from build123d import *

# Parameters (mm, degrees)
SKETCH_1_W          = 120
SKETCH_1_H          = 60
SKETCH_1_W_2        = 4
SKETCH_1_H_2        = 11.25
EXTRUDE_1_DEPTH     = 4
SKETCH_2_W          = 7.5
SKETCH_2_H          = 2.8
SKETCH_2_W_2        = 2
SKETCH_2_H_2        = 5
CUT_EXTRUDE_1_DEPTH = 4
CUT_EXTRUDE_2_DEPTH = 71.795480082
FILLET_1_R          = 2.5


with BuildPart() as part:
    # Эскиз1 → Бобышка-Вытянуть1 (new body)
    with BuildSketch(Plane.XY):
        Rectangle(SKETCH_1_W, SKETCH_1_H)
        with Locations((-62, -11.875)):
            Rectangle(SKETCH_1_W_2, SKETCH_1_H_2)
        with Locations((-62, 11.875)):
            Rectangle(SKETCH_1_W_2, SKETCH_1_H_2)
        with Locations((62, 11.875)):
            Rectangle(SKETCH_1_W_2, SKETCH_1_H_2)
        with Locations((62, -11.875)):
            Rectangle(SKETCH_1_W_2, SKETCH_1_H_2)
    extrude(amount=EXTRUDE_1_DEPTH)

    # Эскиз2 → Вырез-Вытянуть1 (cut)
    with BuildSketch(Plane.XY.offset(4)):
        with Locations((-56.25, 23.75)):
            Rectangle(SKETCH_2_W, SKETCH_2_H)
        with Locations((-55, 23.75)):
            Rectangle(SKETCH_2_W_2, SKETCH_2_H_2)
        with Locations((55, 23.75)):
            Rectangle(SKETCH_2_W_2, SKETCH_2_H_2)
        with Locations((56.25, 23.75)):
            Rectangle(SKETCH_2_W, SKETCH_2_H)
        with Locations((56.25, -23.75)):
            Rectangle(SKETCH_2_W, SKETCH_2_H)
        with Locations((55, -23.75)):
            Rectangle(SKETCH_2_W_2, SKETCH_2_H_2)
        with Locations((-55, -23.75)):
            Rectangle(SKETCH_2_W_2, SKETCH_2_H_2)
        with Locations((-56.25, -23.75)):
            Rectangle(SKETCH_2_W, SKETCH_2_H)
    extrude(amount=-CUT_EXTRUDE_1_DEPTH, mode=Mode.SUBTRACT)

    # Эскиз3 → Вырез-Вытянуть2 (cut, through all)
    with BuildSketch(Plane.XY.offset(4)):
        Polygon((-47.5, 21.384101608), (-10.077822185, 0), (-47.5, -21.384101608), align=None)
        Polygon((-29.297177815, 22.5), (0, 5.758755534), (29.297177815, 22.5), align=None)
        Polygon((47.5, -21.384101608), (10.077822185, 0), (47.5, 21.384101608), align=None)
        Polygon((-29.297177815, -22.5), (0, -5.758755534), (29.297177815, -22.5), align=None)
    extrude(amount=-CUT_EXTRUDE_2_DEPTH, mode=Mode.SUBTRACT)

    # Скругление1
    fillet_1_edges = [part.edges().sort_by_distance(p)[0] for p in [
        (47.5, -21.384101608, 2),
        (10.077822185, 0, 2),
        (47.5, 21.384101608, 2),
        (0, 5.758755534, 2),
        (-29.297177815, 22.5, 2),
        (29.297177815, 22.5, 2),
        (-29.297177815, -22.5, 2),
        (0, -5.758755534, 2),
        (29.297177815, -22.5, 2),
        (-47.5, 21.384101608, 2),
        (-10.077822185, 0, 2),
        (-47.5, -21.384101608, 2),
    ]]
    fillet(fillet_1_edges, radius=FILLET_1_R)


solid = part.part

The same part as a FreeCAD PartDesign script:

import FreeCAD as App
import Part
import Sketcher
from FreeCAD import Vector


def edges_at(feature, points):
    """Names of the edges that pass closest to the given points."""
    edges = feature.Shape.Edges
    near = lambda p: min(range(len(edges)), key=lambda i: edges[i].distToShape(Part.Vertex(*p))[0])
    return sorted({f"Edge{near(p) + 1}" for p in points})

doc = App.newDocument("Part")
params = doc.addObject("Spreadsheet::Sheet", "Params")
for row, (alias, value) in enumerate([
    ("sketch1_width", "120 mm"),
    ("sketch1_width2", "4 mm"),
    ("sketch1_height", "12.5 mm"),
    ("pad1_length", "4 mm"),
    ("sketch2_width", "4 mm"),
    ("sketch2_width2", "2 mm"),
    ("sketch2_width3", "1.5 mm"),
    ("sketch2_height", "2.8 mm"),
    ("sketch2_height2", "1.1 mm"),
    ("pocket1_length", "4 mm"),
    ("fillet_radius", "2.5 mm"),
], start=1):
    params.set(f"A{row}", alias)
    params.set(f"B{row}", "=" + value)
    params.setAlias(f"B{row}", alias)

body = doc.addObject("PartDesign::Body", "Body")

# Sketch on XY plane
sketch1 = body.newObject("Sketcher::SketchObject", "Sketch")
sketch1.AttachmentSupport = (doc.getObject("XY_Plane"), [""])
sketch1.MapMode = "FlatFace"
sketch1.addGeometry(Part.LineSegment(Vector(-60, -17.5, 0), Vector(-60, -30, 0)), False)
sketch1.addGeometry(Part.LineSegment(Vector(-60, -30, 0), Vector(60, -30, 0)), False)
sketch1.addGeometry(Part.LineSegment(Vector(60, -30, 0), Vector(60, -17.5, 0)), False)
sketch1.addGeometry(Part.LineSegment(Vector(60, -17.5, 0), Vector(64, -17.5, 0)), False)
sketch1.addGeometry(Part.LineSegment(Vector(64, -17.5, 0), Vector(64, -6.2, 0)), False)
sketch1.addGeometry(Part.LineSegment(Vector(64, -6.2, 0), Vector(60, -6.2, 0)), False)
sketch1.addGeometry(Part.LineSegment(Vector(60, -6.2, 0), Vector(60, 6.2, 0)), False)
sketch1.addGeometry(Part.LineSegment(Vector(60, 6.2, 0), Vector(64, 6.2, 0)), False)
sketch1.addGeometry(Part.LineSegment(Vector(64, 6.2, 0), Vector(64, 17.5, 0)), False)
sketch1.addGeometry(Part.LineSegment(Vector(64, 17.5, 0), Vector(60, 17.5, 0)), False)
sketch1.addGeometry(Part.LineSegment(Vector(60, 17.5, 0), Vector(60, 30, 0)), False)
sketch1.addGeometry(Part.LineSegment(Vector(60, 30, 0), Vector(-60, 30, 0)), False)
sketch1.addGeometry(Part.LineSegment(Vector(-60, 30, 0), Vector(-60, 17.5, 0)), False)
sketch1.addGeometry(Part.LineSegment(Vector(-60, 17.5, 0), Vector(-64, 17.5, 0)), False)
sketch1.addGeometry(Part.LineSegment(Vector(-64, 17.5, 0), Vector(-64, 6.2, 0)), False)
sketch1.addGeometry(Part.LineSegment(Vector(-64, 6.2, 0), Vector(-60, 6.2, 0)), False)
sketch1.addGeometry(Part.LineSegment(Vector(-60, 6.2, 0), Vector(-60, -6.2, 0)), False)
sketch1.addGeometry(Part.LineSegment(Vector(-60, -6.2, 0), Vector(-64, -6.2, 0)), False)
sketch1.addGeometry(Part.LineSegment(Vector(-64, -6.2, 0), Vector(-64, -17.5, 0)), False)
sketch1.addGeometry(Part.LineSegment(Vector(-64, -17.5, 0), Vector(-60, -17.5, 0)), False)
sketch1.addConstraint(Sketcher.Constraint("Coincident", 0, 2, 1, 1))
sketch1.addConstraint(Sketcher.Constraint("Coincident", 1, 2, 2, 1))
sketch1.addConstraint(Sketcher.Constraint("Coincident", 2, 2, 3, 1))
sketch1.addConstraint(Sketcher.Constraint("Coincident", 3, 2, 4, 1))
sketch1.addConstraint(Sketcher.Constraint("Coincident", 4, 2, 5, 1))
sketch1.addConstraint(Sketcher.Constraint("Coincident", 5, 2, 6, 1))
sketch1.addConstraint(Sketcher.Constraint("Coincident", 6, 2, 7, 1))
sketch1.addConstraint(Sketcher.Constraint("Coincident", 7, 2, 8, 1))
sketch1.addConstraint(Sketcher.Constraint("Coincident", 8, 2, 9, 1))
sketch1.addConstraint(Sketcher.Constraint("Coincident", 9, 2, 10, 1))
sketch1.addConstraint(Sketcher.Constraint("Coincident", 10, 2, 11, 1))
sketch1.addConstraint(Sketcher.Constraint("Coincident", 11, 2, 12, 1))
sketch1.addConstraint(Sketcher.Constraint("Coincident", 12, 2, 13, 1))
sketch1.addConstraint(Sketcher.Constraint("Coincident", 13, 2, 14, 1))
sketch1.addConstraint(Sketcher.Constraint("Coincident", 14, 2, 15, 1))
sketch1.addConstraint(Sketcher.Constraint("Coincident", 15, 2, 16, 1))
sketch1.addConstraint(Sketcher.Constraint("Coincident", 16, 2, 17, 1))
sketch1.addConstraint(Sketcher.Constraint("Coincident", 17, 2, 18, 1))
sketch1.addConstraint(Sketcher.Constraint("Coincident", 18, 2, 19, 1))
sketch1.addConstraint(Sketcher.Constraint("Coincident", 19, 2, 0, 1))
sketch1.addConstraint(Sketcher.Constraint("Vertical", 0))
sketch1.addConstraint(Sketcher.Constraint("Horizontal", 1))
sketch1.addConstraint(Sketcher.Constraint("Vertical", 2))
sketch1.addConstraint(Sketcher.Constraint("Horizontal", 3))
sketch1.addConstraint(Sketcher.Constraint("Vertical", 4))
sketch1.addConstraint(Sketcher.Constraint("Horizontal", 5))
sketch1.addConstraint(Sketcher.Constraint("Vertical", 6))
sketch1.addConstraint(Sketcher.Constraint("Horizontal", 7))
sketch1.addConstraint(Sketcher.Constraint("Vertical", 8))
sketch1.addConstraint(Sketcher.Constraint("Horizontal", 9))
sketch1.addConstraint(Sketcher.Constraint("Vertical", 10))
sketch1.addConstraint(Sketcher.Constraint("Horizontal", 11))
sketch1.addConstraint(Sketcher.Constraint("Vertical", 12))
sketch1.addConstraint(Sketcher.Constraint("Horizontal", 13))
sketch1.addConstraint(Sketcher.Constraint("Vertical", 14))
sketch1.addConstraint(Sketcher.Constraint("Horizontal", 15))
sketch1.addConstraint(Sketcher.Constraint("Vertical", 16))
sketch1.addConstraint(Sketcher.Constraint("Horizontal", 17))
sketch1.addConstraint(Sketcher.Constraint("Vertical", 18))
sketch1.addConstraint(Sketcher.Constraint("Horizontal", 19))
sketch1.addConstraint(Sketcher.Constraint("Symmetric", 0, 2, 10, 2, -1, 1))
sketch1.addConstraint(Sketcher.Constraint("Symmetric", 2, 2, 12, 2, -1, 1))
sketch1.addConstraint(Sketcher.Constraint("Symmetric", 4, 2, 14, 2, -1, 1))
sketch1.addConstraint(Sketcher.Constraint("Symmetric", 6, 2, 16, 2, -1, 1))
sketch1.addConstraint(Sketcher.Constraint("Symmetric", 8, 2, 18, 2, -1, 1))
sketch1.addConstraint(Sketcher.Constraint("Symmetric", 9, 2, 12, 2, -2))
sketch1.addConstraint(Sketcher.Constraint("Symmetric", 7, 2, 14, 2, -2))
sketch1.addConstraint(Sketcher.Constraint("Vertical", 2, 2, 5, 2))
sketch1.addConstraint(Sketcher.Constraint("Equal", 2, 6))
sketch1.addConstraint(Sketcher.Constraint("DistanceX", 1, 1, 1, 2, 120.0))
sketch1.addConstraint(Sketcher.Constraint("DistanceX", 3, 1, 3, 2, 4.0))
sketch1.addConstraint(Sketcher.Constraint("DistanceY", 0, 2, 0, 1, 12.5))
sketch1.addConstraint(Sketcher.Constraint("DistanceY", 0, 2, -1, 1, 30.0))
sketch1.setExpression("Constraints[49]", "Params.sketch1_width")
sketch1.setExpression("Constraints[50]", "Params.sketch1_width2")
sketch1.setExpression("Constraints[51]", "Params.sketch1_height")
pad1 = body.newObject("PartDesign::Pad", "Pad")
pad1.Profile = sketch1
pad1.setExpression("Length", "Params.pad1_length")

# Sketch on XY plane
sketch2 = body.newObject("Sketcher::SketchObject", "Sketch001")
sketch2.AttachmentSupport = (doc.getObject("XY_Plane"), [""])
sketch2.MapMode = "FlatFace"
sketch2.AttachmentOffset = App.Placement(Vector(0, 0, 4), App.Rotation())
sketch2.addGeometry(Part.LineSegment(Vector(-60, 25.1, 0), Vector(-60, 22.4, 0)), False)
sketch2.addGeometry(Part.LineSegment(Vector(-60, 22.4, 0), Vector(-56, 22.4, 0)), False)
sketch2.addGeometry(Part.LineSegment(Vector(-56, 22.4, 0), Vector(-56, 21.2, 0)), False)
sketch2.addGeometry(Part.LineSegment(Vector(-56, 21.2, 0), Vector(-54, 21.2, 0)), False)
sketch2.addGeometry(Part.LineSegment(Vector(-54, 21.2, 0), Vector(-54, 22.4, 0)), False)
sketch2.addGeometry(Part.LineSegment(Vector(-54, 22.4, 0), Vector(-52.5, 22.4, 0)), False)
sketch2.addGeometry(Part.LineSegment(Vector(-52.5, 22.4, 0), Vector(-52.5, 25.1, 0)), False)
sketch2.addGeometry(Part.LineSegment(Vector(-52.5, 25.1, 0), Vector(-54, 25.1, 0)), False)
sketch2.addGeometry(Part.LineSegment(Vector(-54, 25.1, 0), Vector(-54, 26.2, 0)), False)
sketch2.addGeometry(Part.LineSegment(Vector(-54, 26.2, 0), Vector(-56, 26.2, 0)), False)
sketch2.addGeometry(Part.LineSegment(Vector(-56, 26.2, 0), Vector(-56, 25.1, 0)), False)
sketch2.addGeometry(Part.LineSegment(Vector(-56, 25.1, 0), Vector(-60, 25.1, 0)), False)
sketch2.addGeometry(Part.LineSegment(Vector(54, 22.4, 0), Vector(54, 21.2, 0)), False)
sketch2.addGeometry(Part.LineSegment(Vector(54, 21.2, 0), Vector(56, 21.2, 0)), False)
sketch2.addGeometry(Part.LineSegment(Vector(56, 21.2, 0), Vector(56, 22.4, 0)), False)
sketch2.addGeometry(Part.LineSegment(Vector(56, 22.4, 0), Vector(60, 22.4, 0)), False)
sketch2.addGeometry(Part.LineSegment(Vector(60, 22.4, 0), Vector(60, 25.1, 0)), False)
sketch2.addGeometry(Part.LineSegment(Vector(60, 25.1, 0), Vector(56, 25.1, 0)), False)
sketch2.addGeometry(Part.LineSegment(Vector(56, 25.1, 0), Vector(56, 26.2, 0)), False)
sketch2.addGeometry(Part.LineSegment(Vector(56, 26.2, 0), Vector(54, 26.2, 0)), False)
sketch2.addGeometry(Part.LineSegment(Vector(54, 26.2, 0), Vector(54, 25.1, 0)), False)
sketch2.addGeometry(Part.LineSegment(Vector(54, 25.1, 0), Vector(52.5, 25.1, 0)), False)
sketch2.addGeometry(Part.LineSegment(Vector(52.5, 25.1, 0), Vector(52.5, 22.4, 0)), False)
sketch2.addGeometry(Part.LineSegment(Vector(52.5, 22.4, 0), Vector(54, 22.4, 0)), False)
sketch2.addGeometry(Part.LineSegment(Vector(52.5, -22.4, 0), Vector(52.5, -25.1, 0)), False)
sketch2.addGeometry(Part.LineSegment(Vector(52.5, -25.1, 0), Vector(54, -25.1, 0)), False)
sketch2.addGeometry(Part.LineSegment(Vector(54, -25.1, 0), Vector(54, -26.2, 0)), False)
sketch2.addGeometry(Part.LineSegment(Vector(54, -26.2, 0), Vector(56, -26.2, 0)), False)
sketch2.addGeometry(Part.LineSegment(Vector(56, -26.2, 0), Vector(56, -25.1, 0)), False)
sketch2.addGeometry(Part.LineSegment(Vector(56, -25.1, 0), Vector(60, -25.1, 0)), False)
sketch2.addGeometry(Part.LineSegment(Vector(60, -25.1, 0), Vector(60, -22.4, 0)), False)
sketch2.addGeometry(Part.LineSegment(Vector(60, -22.4, 0), Vector(56, -22.4, 0)), False)
sketch2.addGeometry(Part.LineSegment(Vector(56, -22.4, 0), Vector(56, -21.2, 0)), False)
sketch2.addGeometry(Part.LineSegment(Vector(56, -21.2, 0), Vector(54, -21.2, 0)), False)
sketch2.addGeometry(Part.LineSegment(Vector(54, -21.2, 0), Vector(54, -22.4, 0)), False)
sketch2.addGeometry(Part.LineSegment(Vector(54, -22.4, 0), Vector(52.5, -22.4, 0)), False)
sketch2.addGeometry(Part.LineSegment(Vector(-56, -25.1, 0), Vector(-56, -26.2, 0)), False)
sketch2.addGeometry(Part.LineSegment(Vector(-56, -26.2, 0), Vector(-54, -26.2, 0)), False)
sketch2.addGeometry(Part.LineSegment(Vector(-54, -26.2, 0), Vector(-54, -25.1, 0)), False)
sketch2.addGeometry(Part.LineSegment(Vector(-54, -25.1, 0), Vector(-52.5, -25.1, 0)), False)
sketch2.addGeometry(Part.LineSegment(Vector(-52.5, -25.1, 0), Vector(-52.5, -22.4, 0)), False)
sketch2.addGeometry(Part.LineSegment(Vector(-52.5, -22.4, 0), Vector(-54, -22.4, 0)), False)
sketch2.addGeometry(Part.LineSegment(Vector(-54, -22.4, 0), Vector(-54, -21.2, 0)), False)
sketch2.addGeometry(Part.LineSegment(Vector(-54, -21.2, 0), Vector(-56, -21.2, 0)), False)
sketch2.addGeometry(Part.LineSegment(Vector(-56, -21.2, 0), Vector(-56, -22.4, 0)), False)
sketch2.addGeometry(Part.LineSegment(Vector(-56, -22.4, 0), Vector(-60, -22.4, 0)), False)
sketch2.addGeometry(Part.LineSegment(Vector(-60, -22.4, 0), Vector(-60, -25.1, 0)), False)
sketch2.addGeometry(Part.LineSegment(Vector(-60, -25.1, 0), Vector(-56, -25.1, 0)), False)
sketch2.addConstraint(Sketcher.Constraint("Coincident", 0, 2, 1, 1))
sketch2.addConstraint(Sketcher.Constraint("Coincident", 1, 2, 2, 1))
sketch2.addConstraint(Sketcher.Constraint("Coincident", 2, 2, 3, 1))
sketch2.addConstraint(Sketcher.Constraint("Coincident", 3, 2, 4, 1))
sketch2.addConstraint(Sketcher.Constraint("Coincident", 4, 2, 5, 1))
sketch2.addConstraint(Sketcher.Constraint("Coincident", 5, 2, 6, 1))
sketch2.addConstraint(Sketcher.Constraint("Coincident", 6, 2, 7, 1))
sketch2.addConstraint(Sketcher.Constraint("Coincident", 7, 2, 8, 1))
sketch2.addConstraint(Sketcher.Constraint("Coincident", 8, 2, 9, 1))
sketch2.addConstraint(Sketcher.Constraint("Coincident", 9, 2, 10, 1))
sketch2.addConstraint(Sketcher.Constraint("Coincident", 10, 2, 11, 1))
sketch2.addConstraint(Sketcher.Constraint("Coincident", 11, 2, 0, 1))
sketch2.addConstraint(Sketcher.Constraint("Coincident", 12, 2, 13, 1))
sketch2.addConstraint(Sketcher.Constraint("Coincident", 13, 2, 14, 1))
sketch2.addConstraint(Sketcher.Constraint("Coincident", 14, 2, 15, 1))
sketch2.addConstraint(Sketcher.Constraint("Coincident", 15, 2, 16, 1))
sketch2.addConstraint(Sketcher.Constraint("Coincident", 16, 2, 17, 1))
sketch2.addConstraint(Sketcher.Constraint("Coincident", 17, 2, 18, 1))
sketch2.addConstraint(Sketcher.Constraint("Coincident", 18, 2, 19, 1))
sketch2.addConstraint(Sketcher.Constraint("Coincident", 19, 2, 20, 1))
sketch2.addConstraint(Sketcher.Constraint("Coincident", 20, 2, 21, 1))
sketch2.addConstraint(Sketcher.Constraint("Coincident", 21, 2, 22, 1))
sketch2.addConstraint(Sketcher.Constraint("Coincident", 22, 2, 23, 1))
sketch2.addConstraint(Sketcher.Constraint("Coincident", 23, 2, 12, 1))
sketch2.addConstraint(Sketcher.Constraint("Coincident", 24, 2, 25, 1))
sketch2.addConstraint(Sketcher.Constraint("Coincident", 25, 2, 26, 1))
sketch2.addConstraint(Sketcher.Constraint("Coincident", 26, 2, 27, 1))
sketch2.addConstraint(Sketcher.Constraint("Coincident", 27, 2, 28, 1))
sketch2.addConstraint(Sketcher.Constraint("Coincident", 28, 2, 29, 1))
sketch2.addConstraint(Sketcher.Constraint("Coincident", 29, 2, 30, 1))
sketch2.addConstraint(Sketcher.Constraint("Coincident", 30, 2, 31, 1))
sketch2.addConstraint(Sketcher.Constraint("Coincident", 31, 2, 32, 1))
sketch2.addConstraint(Sketcher.Constraint("Coincident", 32, 2, 33, 1))
sketch2.addConstraint(Sketcher.Constraint("Coincident", 33, 2, 34, 1))
sketch2.addConstraint(Sketcher.Constraint("Coincident", 34, 2, 35, 1))
sketch2.addConstraint(Sketcher.Constraint("Coincident", 35, 2, 24, 1))
sketch2.addConstraint(Sketcher.Constraint("Coincident", 36, 2, 37, 1))
sketch2.addConstraint(Sketcher.Constraint("Coincident", 37, 2, 38, 1))
sketch2.addConstraint(Sketcher.Constraint("Coincident", 38, 2, 39, 1))
sketch2.addConstraint(Sketcher.Constraint("Coincident", 39, 2, 40, 1))
sketch2.addConstraint(Sketcher.Constraint("Coincident", 40, 2, 41, 1))
sketch2.addConstraint(Sketcher.Constraint("Coincident", 41, 2, 42, 1))
sketch2.addConstraint(Sketcher.Constraint("Coincident", 42, 2, 43, 1))
sketch2.addConstraint(Sketcher.Constraint("Coincident", 43, 2, 44, 1))
sketch2.addConstraint(Sketcher.Constraint("Coincident", 44, 2, 45, 1))
sketch2.addConstraint(Sketcher.Constraint("Coincident", 45, 2, 46, 1))
sketch2.addConstraint(Sketcher.Constraint("Coincident", 46, 2, 47, 1))
sketch2.addConstraint(Sketcher.Constraint("Coincident", 47, 2, 36, 1))
sketch2.addConstraint(Sketcher.Constraint("Vertical", 0))
sketch2.addConstraint(Sketcher.Constraint("Horizontal", 1))
sketch2.addConstraint(Sketcher.Constraint("Vertical", 2))
sketch2.addConstraint(Sketcher.Constraint("Horizontal", 3))
sketch2.addConstraint(Sketcher.Constraint("Vertical", 4))
sketch2.addConstraint(Sketcher.Constraint("Horizontal", 5))
sketch2.addConstraint(Sketcher.Constraint("Vertical", 6))
sketch2.addConstraint(Sketcher.Constraint("Horizontal", 7))
sketch2.addConstraint(Sketcher.Constraint("Vertical", 8))
sketch2.addConstraint(Sketcher.Constraint("Horizontal", 9))
sketch2.addConstraint(Sketcher.Constraint("Vertical", 10))
sketch2.addConstraint(Sketcher.Constraint("Horizontal", 11))
sketch2.addConstraint(Sketcher.Constraint("Vertical", 12))
sketch2.addConstraint(Sketcher.Constraint("Horizontal", 13))
sketch2.addConstraint(Sketcher.Constraint("Vertical", 14))
sketch2.addConstraint(Sketcher.Constraint("Horizontal", 15))
sketch2.addConstraint(Sketcher.Constraint("Vertical", 16))
sketch2.addConstraint(Sketcher.Constraint("Horizontal", 17))
sketch2.addConstraint(Sketcher.Constraint("Vertical", 18))
sketch2.addConstraint(Sketcher.Constraint("Horizontal", 19))
sketch2.addConstraint(Sketcher.Constraint("Vertical", 20))
sketch2.addConstraint(Sketcher.Constraint("Horizontal", 21))
sketch2.addConstraint(Sketcher.Constraint("Vertical", 22))
sketch2.addConstraint(Sketcher.Constraint("Horizontal", 23))
sketch2.addConstraint(Sketcher.Constraint("Vertical", 24))
sketch2.addConstraint(Sketcher.Constraint("Horizontal", 25))
sketch2.addConstraint(Sketcher.Constraint("Vertical", 26))
sketch2.addConstraint(Sketcher.Constraint("Horizontal", 27))
sketch2.addConstraint(Sketcher.Constraint("Vertical", 28))
sketch2.addConstraint(Sketcher.Constraint("Horizontal", 29))
sketch2.addConstraint(Sketcher.Constraint("Vertical", 30))
sketch2.addConstraint(Sketcher.Constraint("Horizontal", 31))
sketch2.addConstraint(Sketcher.Constraint("Vertical", 32))
sketch2.addConstraint(Sketcher.Constraint("Horizontal", 33))
sketch2.addConstraint(Sketcher.Constraint("Vertical", 34))
sketch2.addConstraint(Sketcher.Constraint("Horizontal", 35))
sketch2.addConstraint(Sketcher.Constraint("Vertical", 36))
sketch2.addConstraint(Sketcher.Constraint("Horizontal", 37))
sketch2.addConstraint(Sketcher.Constraint("Vertical", 38))
sketch2.addConstraint(Sketcher.Constraint("Horizontal", 39))
sketch2.addConstraint(Sketcher.Constraint("Vertical", 40))
sketch2.addConstraint(Sketcher.Constraint("Horizontal", 41))
sketch2.addConstraint(Sketcher.Constraint("Vertical", 42))
sketch2.addConstraint(Sketcher.Constraint("Horizontal", 43))
sketch2.addConstraint(Sketcher.Constraint("Vertical", 44))
sketch2.addConstraint(Sketcher.Constraint("Horizontal", 45))
sketch2.addConstraint(Sketcher.Constraint("Vertical", 46))
sketch2.addConstraint(Sketcher.Constraint("Horizontal", 47))
sketch2.addConstraint(Sketcher.Constraint("Symmetric", 6, 2, 24, 2, -1, 1))
sketch2.addConstraint(Sketcher.Constraint("Symmetric", 8, 2, 26, 2, -1, 1))
sketch2.addConstraint(Sketcher.Constraint("Symmetric", 10, 2, 28, 2, -1, 1))
sketch2.addConstraint(Sketcher.Constraint("Symmetric", 0, 2, 30, 2, -1, 1))
sketch2.addConstraint(Sketcher.Constraint("Symmetric", 2, 2, 32, 2, -1, 1))
sketch2.addConstraint(Sketcher.Constraint("Symmetric", 4, 2, 34, 2, -1, 1))
sketch2.addConstraint(Sketcher.Constraint("Symmetric", 18, 2, 36, 2, -1, 1))
sketch2.addConstraint(Sketcher.Constraint("Symmetric", 20, 2, 38, 2, -1, 1))
sketch2.addConstraint(Sketcher.Constraint("Symmetric", 22, 2, 40, 2, -1, 1))
sketch2.addConstraint(Sketcher.Constraint("Symmetric", 12, 2, 42, 2, -1, 1))
sketch2.addConstraint(Sketcher.Constraint("Symmetric", 14, 2, 44, 2, -1, 1))
sketch2.addConstraint(Sketcher.Constraint("Symmetric", 16, 2, 46, 2, -1, 1))
sketch2.addConstraint(Sketcher.Constraint("Symmetric", 3, 2, 12, 2, -2))
sketch2.addConstraint(Sketcher.Constraint("Symmetric", 1, 2, 14, 2, -2))
sketch2.addConstraint(Sketcher.Constraint("Symmetric", 11, 2, 16, 2, -2))
sketch2.addConstraint(Sketcher.Constraint("Symmetric", 9, 2, 18, 2, -2))
sketch2.addConstraint(Sketcher.Constraint("Symmetric", 7, 2, 20, 2, -2))
sketch2.addConstraint(Sketcher.Constraint("Symmetric", 5, 2, 22, 2, -2))
sketch2.addConstraint(Sketcher.Constraint("Horizontal", 1, 2, 4, 2))
sketch2.addConstraint(Sketcher.Constraint("Horizontal", 7, 2, 10, 2))
sketch2.addConstraint(Sketcher.Constraint("Vertical", 4, 2, 7, 2))
sketch2.addConstraint(Sketcher.Constraint("Vertical", 2, 2, 9, 2))
sketch2.addConstraint(Sketcher.Constraint("Equal", 4, 8))
sketch2.addConstraint(Sketcher.Constraint("DistanceX", 1, 1, 1, 2, 4.0))
sketch2.addConstraint(Sketcher.Constraint("DistanceX", 3, 1, 3, 2, 2.0))
sketch2.addConstraint(Sketcher.Constraint("DistanceX", 5, 1, 5, 2, 1.5))
sketch2.addConstraint(Sketcher.Constraint("DistanceY", 0, 2, 0, 1, 2.8))
sketch2.addConstraint(Sketcher.Constraint("DistanceY", 2, 2, 2, 1, 1.1))
sketch2.addConstraint(Sketcher.Constraint("DistanceX", 0, 2, -1, 1, 60.0))
sketch2.addConstraint(Sketcher.Constraint("DistanceY", 24, 2, 12, 2, 46.4))
sketch2.setExpression("Constraints[119]", "Params.sketch2_width")
sketch2.setExpression("Constraints[120]", "Params.sketch2_width2")
sketch2.setExpression("Constraints[121]", "Params.sketch2_width3")
sketch2.setExpression("Constraints[122]", "Params.sketch2_height")
sketch2.setExpression("Constraints[123]", "Params.sketch2_height2")
pocket1 = body.newObject("PartDesign::Pocket", "Pocket")
pocket1.Profile = sketch2
pocket1.setExpression("Length", "Params.pocket1_length")

# Sketch on XY plane
sketch3 = body.newObject("Sketcher::SketchObject", "Sketch002")
sketch3.AttachmentSupport = (doc.getObject("XY_Plane"), [""])
sketch3.MapMode = "FlatFace"
sketch3.AttachmentOffset = App.Placement(Vector(0, 0, 4), App.Rotation())
sketch3.addGeometry(Part.LineSegment(Vector(-10, 0, 0), Vector(-48, 21, 0)), False)
sketch3.addGeometry(Part.LineSegment(Vector(-48, 21, 0), Vector(-48, -21, 0)), False)
sketch3.addGeometry(Part.LineSegment(Vector(-48, -21, 0), Vector(-10, 0, 0)), False)
sketch3.addGeometry(Part.LineSegment(Vector(-29, 22, 0), Vector(0, 6, 0)), False)
sketch3.addGeometry(Part.LineSegment(Vector(0, 6, 0), Vector(29, 22, 0)), False)
sketch3.addGeometry(Part.LineSegment(Vector(29, 22, 0), Vector(-29, 22, 0)), False)
sketch3.addGeometry(Part.LineSegment(Vector(10, 0, 0), Vector(48, -21, 0)), False)
sketch3.addGeometry(Part.LineSegment(Vector(48, -21, 0), Vector(48, 21, 0)), False)
sketch3.addGeometry(Part.LineSegment(Vector(48, 21, 0), Vector(10, 0, 0)), False)
sketch3.addGeometry(Part.LineSegment(Vector(0, -6, 0), Vector(-29, -22, 0)), False)
sketch3.addGeometry(Part.LineSegment(Vector(-29, -22, 0), Vector(29, -22, 0)), False)
sketch3.addGeometry(Part.LineSegment(Vector(29, -22, 0), Vector(0, -6, 0)), False)
sketch3.addConstraint(Sketcher.Constraint("Coincident", 0, 2, 1, 1))
sketch3.addConstraint(Sketcher.Constraint("Coincident", 1, 2, 2, 1))
sketch3.addConstraint(Sketcher.Constraint("Coincident", 2, 2, 0, 1))
sketch3.addConstraint(Sketcher.Constraint("Coincident", 3, 2, 4, 1))
sketch3.addConstraint(Sketcher.Constraint("Coincident", 4, 2, 5, 1))
sketch3.addConstraint(Sketcher.Constraint("Coincident", 5, 2, 3, 1))
sketch3.addConstraint(Sketcher.Constraint("Coincident", 6, 2, 7, 1))
sketch3.addConstraint(Sketcher.Constraint("Coincident", 7, 2, 8, 1))
sketch3.addConstraint(Sketcher.Constraint("Coincident", 8, 2, 6, 1))
sketch3.addConstraint(Sketcher.Constraint("Coincident", 9, 2, 10, 1))
sketch3.addConstraint(Sketcher.Constraint("Coincident", 10, 2, 11, 1))
sketch3.addConstraint(Sketcher.Constraint("Coincident", 11, 2, 9, 1))
sketch3.addConstraint(Sketcher.Constraint("Vertical", 1))
sketch3.addConstraint(Sketcher.Constraint("Horizontal", 5))
sketch3.addConstraint(Sketcher.Constraint("Vertical", 7))
sketch3.addConstraint(Sketcher.Constraint("Horizontal", 10))
sketch3.addConstraint(Sketcher.Constraint("Symmetric", 0, 2, 6, 2, -1, 1))
sketch3.addConstraint(Sketcher.Constraint("Symmetric", 2, 2, 8, 2, -1, 1))
sketch3.addConstraint(Sketcher.Constraint("Symmetric", 4, 2, 9, 2, -1, 1))
sketch3.addConstraint(Sketcher.Constraint("Symmetric", 3, 2, 11, 2, -1, 1))
sketch3.addConstraint(Sketcher.Constraint("PointOnObject", 2, 2, -1))
sketch3.addConstraint(Sketcher.Constraint("PointOnObject", 3, 2, -2))
sketch3.addConstraint(Sketcher.Constraint("Parallel", 0, 3))
sketch3.addConstraint(Sketcher.Constraint("Parallel", 2, 4))
sketch3.addConstraint(Sketcher.Constraint("Parallel", 4, 8))
sketch3.addConstraint(Sketcher.Constraint("Parallel", 6, 11))
sketch3.addConstraint(Sketcher.Constraint("Horizontal", 1, 2, 6, 2))
sketch3.addConstraint(Sketcher.Constraint("DistanceX", 1, 2, 6, 2, 95.0))
sketch3.addConstraint(Sketcher.Constraint("DistanceY", 9, 2, 5, 2, 45.0))
sketch3.addConstraint(Sketcher.Constraint("DistanceX", 2, 2, 4, 2, 39.375))
sketch3.addConstraint(Sketcher.Constraint("DistanceY", -1, 1, 0, 2, 21.384102))
sketch3.addConstraint(Sketcher.Constraint("DistanceX", 5, 2, 5, 1, 58.594356))
pocket2 = body.newObject("PartDesign::Pocket", "Pocket001")
pocket2.Profile = sketch3
pocket2.Type = "ThroughAll"
doc.recompute()

fillet = body.newObject("PartDesign::Fillet", "Fillet")
fillet.Base = (pocket2, edges_at(pocket2, [
    (47.5, -21.384, 2),
    (10.078, 0, 2),
    (47.5, 21.384, 2),
    (0, 5.759, 2),
    (-29.297, 22.5, 2),
    (29.297, 22.5, 2),
    (-29.297, -22.5, 2),
    (0, -5.759, 2),
    (29.297, -22.5, 2),
    (-47.5, 21.384, 2),
    (-10.078, 0, 2),
    (-47.5, -21.384, 2),
]))
fillet.setExpression("Radius", "Params.fillet_radius")

doc.recompute()
